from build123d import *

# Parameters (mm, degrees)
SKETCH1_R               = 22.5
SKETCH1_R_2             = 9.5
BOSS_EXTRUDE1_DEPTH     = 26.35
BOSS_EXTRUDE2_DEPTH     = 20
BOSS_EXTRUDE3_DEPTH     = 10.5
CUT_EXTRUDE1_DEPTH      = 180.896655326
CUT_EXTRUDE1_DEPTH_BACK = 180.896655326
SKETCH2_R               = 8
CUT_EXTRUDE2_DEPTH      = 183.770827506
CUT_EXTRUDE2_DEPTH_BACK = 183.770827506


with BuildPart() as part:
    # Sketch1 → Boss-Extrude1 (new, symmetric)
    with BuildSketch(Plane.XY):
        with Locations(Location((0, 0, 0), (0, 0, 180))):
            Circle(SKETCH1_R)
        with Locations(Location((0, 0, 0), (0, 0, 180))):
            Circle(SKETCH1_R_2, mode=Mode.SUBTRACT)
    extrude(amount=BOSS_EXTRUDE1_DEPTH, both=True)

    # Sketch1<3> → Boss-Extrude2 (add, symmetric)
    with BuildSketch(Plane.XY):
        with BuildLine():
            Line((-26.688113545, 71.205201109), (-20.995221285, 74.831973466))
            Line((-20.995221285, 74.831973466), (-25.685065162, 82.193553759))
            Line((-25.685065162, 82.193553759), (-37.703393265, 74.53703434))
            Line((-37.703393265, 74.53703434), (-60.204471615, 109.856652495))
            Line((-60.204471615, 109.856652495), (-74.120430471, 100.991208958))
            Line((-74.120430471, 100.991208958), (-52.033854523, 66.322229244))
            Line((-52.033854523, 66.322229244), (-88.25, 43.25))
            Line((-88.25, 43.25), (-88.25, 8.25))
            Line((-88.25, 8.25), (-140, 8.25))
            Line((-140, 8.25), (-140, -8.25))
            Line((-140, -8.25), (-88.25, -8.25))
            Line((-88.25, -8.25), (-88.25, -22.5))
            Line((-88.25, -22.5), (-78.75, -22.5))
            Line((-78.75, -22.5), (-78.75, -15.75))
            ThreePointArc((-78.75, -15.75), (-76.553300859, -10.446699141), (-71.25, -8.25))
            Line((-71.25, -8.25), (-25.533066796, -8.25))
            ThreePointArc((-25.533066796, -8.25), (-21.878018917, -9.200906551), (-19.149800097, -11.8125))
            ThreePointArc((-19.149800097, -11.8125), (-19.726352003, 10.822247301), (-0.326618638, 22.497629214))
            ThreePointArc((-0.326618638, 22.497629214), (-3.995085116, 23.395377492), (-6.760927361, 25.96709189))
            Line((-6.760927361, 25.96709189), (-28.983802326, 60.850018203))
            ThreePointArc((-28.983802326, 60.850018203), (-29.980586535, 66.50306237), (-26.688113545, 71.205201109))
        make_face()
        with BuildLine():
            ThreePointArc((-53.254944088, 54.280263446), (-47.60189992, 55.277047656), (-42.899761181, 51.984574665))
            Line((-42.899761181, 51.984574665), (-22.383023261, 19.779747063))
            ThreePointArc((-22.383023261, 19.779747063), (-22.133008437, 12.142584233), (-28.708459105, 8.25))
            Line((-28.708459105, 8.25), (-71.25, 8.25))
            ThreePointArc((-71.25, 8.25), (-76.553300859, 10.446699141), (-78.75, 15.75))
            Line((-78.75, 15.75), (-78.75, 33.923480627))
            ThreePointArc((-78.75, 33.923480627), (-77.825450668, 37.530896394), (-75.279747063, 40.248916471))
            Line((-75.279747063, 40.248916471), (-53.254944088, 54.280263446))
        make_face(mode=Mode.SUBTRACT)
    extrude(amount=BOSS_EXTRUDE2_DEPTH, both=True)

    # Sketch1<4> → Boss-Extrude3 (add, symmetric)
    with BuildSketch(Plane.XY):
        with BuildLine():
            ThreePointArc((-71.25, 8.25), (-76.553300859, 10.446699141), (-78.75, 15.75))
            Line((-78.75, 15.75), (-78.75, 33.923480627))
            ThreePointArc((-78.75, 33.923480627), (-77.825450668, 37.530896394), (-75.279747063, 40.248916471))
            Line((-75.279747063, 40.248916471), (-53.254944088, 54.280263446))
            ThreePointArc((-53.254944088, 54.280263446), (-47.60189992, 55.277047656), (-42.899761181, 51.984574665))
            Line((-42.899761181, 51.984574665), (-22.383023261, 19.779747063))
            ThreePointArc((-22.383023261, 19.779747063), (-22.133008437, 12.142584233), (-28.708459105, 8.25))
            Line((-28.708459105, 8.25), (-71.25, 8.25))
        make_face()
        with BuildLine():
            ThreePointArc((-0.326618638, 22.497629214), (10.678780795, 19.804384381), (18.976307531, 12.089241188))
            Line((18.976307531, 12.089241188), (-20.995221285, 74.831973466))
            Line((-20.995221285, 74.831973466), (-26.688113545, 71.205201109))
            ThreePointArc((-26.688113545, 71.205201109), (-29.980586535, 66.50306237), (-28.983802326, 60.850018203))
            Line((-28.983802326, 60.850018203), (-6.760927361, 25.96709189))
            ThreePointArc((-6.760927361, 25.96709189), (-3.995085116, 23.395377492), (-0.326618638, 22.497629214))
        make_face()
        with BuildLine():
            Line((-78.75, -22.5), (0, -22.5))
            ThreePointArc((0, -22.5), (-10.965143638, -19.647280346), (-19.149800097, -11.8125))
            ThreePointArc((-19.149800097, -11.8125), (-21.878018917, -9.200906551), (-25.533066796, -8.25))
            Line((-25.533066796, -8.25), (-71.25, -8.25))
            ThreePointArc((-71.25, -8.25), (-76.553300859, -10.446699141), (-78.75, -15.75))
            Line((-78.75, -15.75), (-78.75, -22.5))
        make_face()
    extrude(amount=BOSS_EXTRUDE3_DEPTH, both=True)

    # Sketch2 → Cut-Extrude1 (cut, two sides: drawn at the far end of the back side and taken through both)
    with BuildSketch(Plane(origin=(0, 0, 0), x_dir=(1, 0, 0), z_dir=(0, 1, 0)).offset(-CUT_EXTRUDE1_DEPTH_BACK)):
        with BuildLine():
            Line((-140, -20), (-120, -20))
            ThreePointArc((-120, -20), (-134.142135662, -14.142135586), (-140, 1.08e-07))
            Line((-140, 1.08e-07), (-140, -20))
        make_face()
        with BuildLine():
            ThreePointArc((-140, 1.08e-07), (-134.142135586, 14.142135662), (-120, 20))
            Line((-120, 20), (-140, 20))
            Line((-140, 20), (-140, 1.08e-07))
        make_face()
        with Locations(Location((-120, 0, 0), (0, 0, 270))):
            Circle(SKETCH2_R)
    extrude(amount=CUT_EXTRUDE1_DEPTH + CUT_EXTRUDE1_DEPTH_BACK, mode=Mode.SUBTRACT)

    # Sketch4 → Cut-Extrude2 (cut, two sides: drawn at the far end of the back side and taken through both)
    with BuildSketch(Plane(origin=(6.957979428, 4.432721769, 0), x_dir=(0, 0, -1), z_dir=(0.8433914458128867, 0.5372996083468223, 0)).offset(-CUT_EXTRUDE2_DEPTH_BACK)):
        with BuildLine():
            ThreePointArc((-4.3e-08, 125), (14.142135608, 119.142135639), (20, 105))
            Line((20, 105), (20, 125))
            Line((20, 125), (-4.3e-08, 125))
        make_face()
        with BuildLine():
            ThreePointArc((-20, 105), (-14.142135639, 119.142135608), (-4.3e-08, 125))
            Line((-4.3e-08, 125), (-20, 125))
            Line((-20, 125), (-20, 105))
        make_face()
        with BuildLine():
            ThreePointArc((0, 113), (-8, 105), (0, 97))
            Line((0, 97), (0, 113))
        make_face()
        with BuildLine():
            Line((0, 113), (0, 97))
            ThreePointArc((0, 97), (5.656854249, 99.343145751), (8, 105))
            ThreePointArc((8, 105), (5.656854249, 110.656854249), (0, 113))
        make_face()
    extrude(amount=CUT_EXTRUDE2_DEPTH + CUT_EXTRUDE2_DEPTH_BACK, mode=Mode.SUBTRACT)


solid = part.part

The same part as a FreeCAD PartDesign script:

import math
import FreeCAD as App
import Part
import Sketcher
from FreeCAD import Vector
Q = App.Units.Quantity

doc = App.newDocument("Part")
body = doc.addObject("PartDesign::Body", "Body")

sketch1 = body.newObject("Sketcher::SketchObject", "Sketch")
sketch1.AttachmentSupport = (doc.getObject("XY_Plane"), [""])
sketch1.MapMode = "FlatFace"
sketch1.addGeometry(Part.Circle(Vector(0, 0, 0), Vector(0, 0, 1), 22), False)
sketch1.addGeometry(Part.Circle(Vector(0, 0, 0), Vector(0, 0, 1), 10), False)
sketch1.addConstraint(Sketcher.Constraint("Coincident", 0, 3, -1, 1))
sketch1.addConstraint(Sketcher.Constraint("Coincident", 1, 3, -1, 1))
sketch1.addConstraint(Sketcher.Constraint("Diameter", 0, Q("45 mm")))
sketch1.addConstraint(Sketcher.Constraint("Diameter", 1, Q("19 mm")))
pad1 = body.newObject("PartDesign::Pad", "Pad")
pad1.Profile = sketch1
pad1.Length = 52.7
pad1.Midplane = True

sketch2 = body.newObject("Sketcher::SketchObject", "Sketch001")
sketch2.AttachmentSupport = (doc.getObject("XY_Plane"), [""])
sketch2.MapMode = "FlatFace"
sketch2.addGeometry(Part.LineSegment(Vector(-27, 71, 0), Vector(-21, 75, 0)), False)
sketch2.addGeometry(Part.LineSegment(Vector(-21, 75, 0), Vector(-26, 82, 0)), False)
sketch2.addGeometry(Part.LineSegment(Vector(-26, 82, 0), Vector(-38, 75, 0)), False)
sketch2.addGeometry(Part.LineSegment(Vector(-38, 75, 0), Vector(-60, 110, 0)), False)
sketch2.addGeometry(Part.LineSegment(Vector(-60, 110, 0), Vector(-74, 101, 0)), False)
sketch2.addGeometry(Part.LineSegment(Vector(-74, 101, 0), Vector(-52, 66, 0)), False)
sketch2.addGeometry(Part.LineSegment(Vector(-52, 66, 0), Vector(-88, 43, 0)), False)
sketch2.addGeometry(Part.LineSegment(Vector(-88, 43, 0), Vector(-88, 8, 0)), False)
sketch2.addGeometry(Part.LineSegment(Vector(-88, 8, 0), Vector(-140, 8, 0)), False)
sketch2.addGeometry(Part.LineSegment(Vector(-140, 8, 0), Vector(-140, -8, 0)), False)
sketch2.addGeometry(Part.LineSegment(Vector(-140, -8, 0), Vector(-88, -8, 0)), False)
sketch2.addGeometry(Part.LineSegment(Vector(-88, -8, 0), Vector(-88, -22, 0)), False)
sketch2.addGeometry(Part.LineSegment(Vector(-88, -22, 0), Vector(-79, -22, 0)), False)
sketch2.addGeometry(Part.LineSegment(Vector(-79, -22, 0), Vector(-79, -16, 0)), False)
sketch2.addGeometry(Part.ArcOfCircle(Part.Circle(Vector(-71, -16, 0), Vector(0, 0, 1), 8), math.radians(90), math.radians(180)), False)
sketch2.addGeometry(Part.LineSegment(Vector(-71, -8, 0), Vector(-26, -8, 0)), False)
sketch2.addGeometry(Part.ArcOfCircle(Part.Circle(Vector(-26, -16, 0), Vector(0, 0, 1), 7), math.radians(32), math.radians(90)), False)
sketch2.addGeometry(Part.ArcOfCircle(Part.Circle(Vector(0, 0, 0), Vector(0, 0, 1), 22), math.radians(91), math.radians(212)), False)
sketch2.addGeometry(Part.ArcOfCircle(Part.Circle(Vector(0, 30, 0), Vector(0, 0, 1), 8), math.radians(-147), math.radians(-89)), False)
sketch2.addGeometry(Part.LineSegment(Vector(-7, 26, 0), Vector(-29, 61, 0)), False)
sketch2.addGeometry(Part.ArcOfCircle(Part.Circle(Vector(-23, 65, 0), Vector(0, 0, 1), 8), math.radians(123), math.radians(212)), False)
sketch2.addGeometry(Part.LineSegment(Vector(-75, 40, 0), Vector(-53, 54, 0)), False)
sketch2.addGeometry(Part.ArcOfCircle(Part.Circle(Vector(-49, 48, 0), Vector(0, 0, 1), 8), math.radians(33), math.radians(123)), False)
sketch2.addGeometry(Part.LineSegment(Vector(-43, 52, 0), Vector(-22, 20, 0)), False)
sketch2.addGeometry(Part.ArcOfCircle(Part.Circle(Vector(-29, 16, 0), Vector(0, 0, 1), 8), math.radians(-90), math.radians(33)), False)
sketch2.addGeometry(Part.LineSegment(Vector(-29, 8, 0), Vector(-71, 8, 0)), False)
sketch2.addGeometry(Part.ArcOfCircle(Part.Circle(Vector(-71, 16, 0), Vector(0, 0, 1), 8), math.radians(180), math.radians(270)), False)
sketch2.addGeometry(Part.LineSegment(Vector(-79, 16, 0), Vector(-79, 34, 0)), False)
sketch2.addGeometry(Part.ArcOfCircle(Part.Circle(Vector(-71, 34, 0), Vector(0, 0, 1), 8), math.radians(123), math.radians(180)), False)
sketch2.addConstraint(Sketcher.Constraint("Coincident", 0, 2, 1, 1))
sketch2.addConstraint(Sketcher.Constraint("Coincident", 1, 2, 2, 1))
sketch2.addConstraint(Sketcher.Constraint("Coincident", 2, 2, 3, 1))
sketch2.addConstraint(Sketcher.Constraint("Coincident", 3, 2, 4, 1))
sketch2.addConstraint(Sketcher.Constraint("Coincident", 4, 2, 5, 1))
sketch2.addConstraint(Sketcher.Constraint("Coincident", 5, 2, 6, 1))
sketch2.addConstraint(Sketcher.Constraint("Coincident", 6, 2, 7, 1))
sketch2.addConstraint(Sketcher.Constraint("Coincident", 7, 2, 8, 1))
sketch2.addConstraint(Sketcher.Constraint("Coincident", 8, 2, 9, 1))
sketch2.addConstraint(Sketcher.Constraint("Coincident", 9, 2, 10, 1))
sketch2.addConstraint(Sketcher.Constraint("Coincident", 10, 2, 11, 1))
sketch2.addConstraint(Sketcher.Constraint("Coincident", 11, 2, 12, 1))
sketch2.addConstraint(Sketcher.Constraint("Coincident", 12, 2, 13, 1))
sketch2.addConstraint(Sketcher.Constraint("Tangent", 13, 2, 14, 2))
sketch2.addConstraint(Sketcher.Constraint("Tangent", 14, 1, 15, 1))
sketch2.addConstraint(Sketcher.Constraint("Tangent", 15, 2, 16, 2))
sketch2.addConstraint(Sketcher.Constraint("Tangent", 16, 1, 17, 2))
sketch2.addConstraint(Sketcher.Constraint("Tangent", 17, 1, 18, 2))
sketch2.addConstraint(Sketcher.Constraint("Tangent", 18, 1, 19, 1))
sketch2.addConstraint(Sketcher.Constraint("Tangent", 19, 2, 20, 2))
sketch2.addConstraint(Sketcher.Constraint("Tangent", 20, 1, 0, 1))
sketch2.addConstraint(Sketcher.Constraint("Tangent", 21, 2, 22, 2))
sketch2.addConstraint(Sketcher.Constraint("Tangent", 22, 1, 23, 1))
sketch2.addConstraint(Sketcher.Constraint("Tangent", 23, 2, 24, 2))
sketch2.addConstraint(Sketcher.Constraint("Tangent", 24, 1, 25, 1))
sketch2.addConstraint(Sketcher.Constraint("Tangent", 25, 2, 26, 2))
sketch2.addConstraint(Sketcher.Constraint("Tangent", 26, 1, 27, 1))
sketch2.addConstraint(Sketcher.Constraint("Tangent", 27, 2, 28, 2))
sketch2.addConstraint(Sketcher.Constraint("Tangent", 28, 1, 21, 1))
sketch2.addConstraint(Sketcher.Constraint("Vertical", 7))
sketch2.addConstraint(Sketcher.Constraint("Horizontal", 8))
sketch2.addConstraint(Sketcher.Constraint("Vertical", 9))
sketch2.addConstraint(Sketcher.Constraint("Horizontal", 10))
sketch2.addConstraint(Sketcher.Constraint("Vertical", 11))
sketch2.addConstraint(Sketcher.Constraint("Horizontal", 12))
sketch2.addConstraint(Sketcher.Constraint("Vertical", 13))
sketch2.addConstraint(Sketcher.Constraint("Horizontal", 15))
sketch2.addConstraint(Sketcher.Constraint("Horizontal", 25))
sketch2.addConstraint(Sketcher.Constraint("Vertical", 27))
sketch2.addConstraint(Sketcher.Constraint("Coincident", 17, 3, -1, 1))
sketch2.addConstraint(Sketcher.Constraint("Equal", 14, 16))
sketch2.addConstraint(Sketcher.Constraint("Equal", 16, 18))
sketch2.addConstraint(Sketcher.Constraint("Equal", 18, 20))
sketch2.addConstraint(Sketcher.Constraint("Equal", 20, 22))
sketch2.addConstraint(Sketcher.Constraint("Equal", 22, 24))
sketch2.addConstraint(Sketcher.Constraint("Equal", 24, 26))
sketch2.addConstraint(Sketcher.Constraint("Equal", 26, 28))
sketch2.addConstraint(Sketcher.Constraint("Symmetric", 14, 3, 26, 3, -1))
sketch2.addConstraint(Sketcher.Constraint("Symmetric", 7, 2, 10, 2, -1))
sketch2.addConstraint(Sketcher.Constraint("Perpendicular", 0, 1))
sketch2.addConstraint(Sketcher.Constraint("Perpendicular", 1, 2))
sketch2.addConstraint(Sketcher.Constraint("Perpendicular", 2, 3))
sketch2.addConstraint(Sketcher.Constraint("Perpendicular", 3, 4))
sketch2.addConstraint(Sketcher.Constraint("Perpendicular", 4, 5))
sketch2.addConstraint(Sketcher.Constraint("Perpendicular", 5, 6))
sketch2.addConstraint(Sketcher.Constraint("Perpendicular", 6, 19))
sketch2.addConstraint(Sketcher.Constraint("Perpendicular", 19, 21))
sketch2.addConstraint(Sketcher.Constraint("Perpendicular", 21, 23))
sketch2.addConstraint(Sketcher.Constraint("Horizontal", 10, 2, 14, 1))
sketch2.addConstraint(Sketcher.Constraint("Radius", 14, Q("7.5 mm")))
sketch2.addConstraint(Sketcher.Constraint("Radius", 17, Q("22.5 mm")))
sketch2.addConstraint(Sketcher.Constraint("DistanceY", 7, 2, 7, 1, Q("35 mm")))
sketch2.addConstraint(Sketcher.Constraint("DistanceX", 12, 1, 12, 2, Q("9.5 mm")))
sketch2.addConstraint(Sketcher.Constraint("DistanceY", 9, 2, 9, 1, Q("16.5 mm")))
sketch2.addConstraint(Sketcher.Constraint("DistanceX", 8, 2, -1, 1, Q("140 mm")))
sketch2.addConstraint(Sketcher.Constraint("Angle", 0, Q("32.5 deg")))
sketch2.addConstraint(Sketcher.Constraint("Distance", 4, Q("16.5 mm")))
sketch2.addConstraint(Sketcher.Constraint("DistanceX", 8, 2, 8, 1, Q("51.75 mm")))
sketch2.addConstraint(Sketcher.Constraint("DistanceY", 11, 2, 11, 1, Q("14.25 mm")))
sketch2.addConstraint(Sketcher.Constraint("Distance", 0, Q("6.75 mm")))
sketch2.addConstraint(Sketcher.Constraint("Distance", 2, Q("14.25 mm")))
sketch2.addConstraint(Sketcher.Constraint("DistanceX", 25, 2, 25, 1, Q("42.541541 mm")))
sketch2.addConstraint(Sketcher.Constraint("DistanceY", 27, 1, 27, 2, Q("18.173481 mm")))
sketch2.addConstraint(Sketcher.Constraint("DistanceY", -1, 1, 20, 1, Q("71.205201 mm")))
sketch2.addConstraint(Sketcher.Constraint("DistanceX", 16, 3, 20, 3, Q("2.8747 mm")))
sketch2.addConstraint(Sketcher.Constraint("DistanceX", 1, 2, 20, 3, Q("3.026699 mm")))
sketch2.addConstraint(Sketcher.Constraint("DistanceY", 1, 2, 3, 2, Q("27.663099 mm")))
pad2 = body.newObject("PartDesign::Pad", "Pad001")
pad2.Profile = sketch2
pad2.Length = 40
pad2.Midplane = True

sketch3 = body.newObject("Sketcher::SketchObject", "Sketch002")
sketch3.AttachmentSupport = (doc.getObject("XY_Plane"), [""])
sketch3.MapMode = "FlatFace"
sketch3.addGeometry(Part.ArcOfCircle(Part.Circle(Vector(-71, 16, 0), Vector(0, 0, 1), 8), math.radians(180), math.radians(270)), False)
sketch3.addGeometry(Part.LineSegment(Vector(-71, 8, 0), Vector(-29, 8, 0)), False)
sketch3.addGeometry(Part.ArcOfCircle(Part.Circle(Vector(-29, 16, 0), Vector(0, 0, 1), 8), math.radians(-90), math.radians(33)), False)
sketch3.addGeometry(Part.LineSegment(Vector(-22, 20, 0), Vector(-43, 52, 0)), False)
sketch3.addGeometry(Part.ArcOfCircle(Part.Circle(Vector(-49, 48, 0), Vector(0, 0, 1), 8), math.radians(33), math.radians(123)), False)
sketch3.addGeometry(Part.LineSegment(Vector(-53, 54, 0), Vector(-75, 40, 0)), False)
sketch3.addGeometry(Part.ArcOfCircle(Part.Circle(Vector(-71, 34, 0), Vector(0, 0, 1), 8), math.radians(123), math.radians(180)), False)
sketch3.addGeometry(Part.LineSegment(Vector(-79, 34, 0), Vector(-79, 16, 0)), False)
sketch3.addGeometry(Part.ArcOfCircle(Part.Circle(Vector(0, 0, 0), Vector(0, 0, 1), 23), math.radians(33), math.radians(91)), False)
sketch3.addGeometry(Part.LineSegment(Vector(19, 12, 0), Vector(-21, 75, 0)), False)
sketch3.addGeometry(Part.LineSegment(Vector(-21, 75, 0), Vector(-27, 71, 0)), False)
sketch3.addGeometry(Part.ArcOfCircle(Part.Circle(Vector(-23, 65, 0), Vector(0, 0, 1), 8), math.radians(123), math.radians(212)), False)
sketch3.addGeometry(Part.LineSegment(Vector(-29, 61, 0), Vector(-7, 26, 0)), False)
sketch3.addGeometry(Part.ArcOfCircle(Part.Circle(Vector(0, 30, 0), Vector(0, 0, 1), 8), math.radians(-147), math.radians(-89)), False)
sketch3.addGeometry(Part.LineSegment(Vector(-79, -22, 0), Vector(0, -22, 0)), False)
sketch3.addGeometry(Part.ArcOfCircle(Part.Circle(Vector(0, 0, 0), Vector(0, 0, 1), 23), math.radians(-148), math.radians(-90)), False)
sketch3.addGeometry(Part.ArcOfCircle(Part.Circle(Vector(-26, -16, 0), Vector(0, 0, 1), 7), math.radians(32), math.radians(90)), False)
sketch3.addGeometry(Part.LineSegment(Vector(-26, -8, 0), Vector(-71, -8, 0)), False)
sketch3.addGeometry(Part.ArcOfCircle(Part.Circle(Vector(-71, -16, 0), Vector(0, 0, 1), 8), math.radians(90), math.radians(180)), False)
sketch3.addGeometry(Part.LineSegment(Vector(-79, -16, 0), Vector(-79, -22, 0)), False)
sketch3.addConstraint(Sketcher.Constraint("Tangent", 0, 2, 1, 1))
sketch3.addConstraint(Sketcher.Constraint("Tangent", 1, 2, 2, 1))
sketch3.addConstraint(Sketcher.Constraint("Tangent", 2, 2, 3, 1))
sketch3.addConstraint(Sketcher.Constraint("Tangent", 3, 2, 4, 1))
sketch3.addConstraint(Sketcher.Constraint("Tangent", 4, 2, 5, 1))
sketch3.addConstraint(Sketcher.Constraint("Tangent", 5, 2, 6, 1))
sketch3.addConstraint(Sketcher.Constraint("Tangent", 6, 2, 7, 1))
sketch3.addConstraint(Sketcher.Constraint("Tangent", 7, 2, 0, 1))
sketch3.addConstraint(Sketcher.Constraint("Tangent", 8, 1, 9, 1))
sketch3.addConstraint(Sketcher.Constraint("Coincident", 9, 2, 10, 1))
sketch3.addConstraint(Sketcher.Constraint("Tangent", 10, 2, 11, 1))
sketch3.addConstraint(Sketcher.Constraint("Tangent", 11, 2, 12, 1))
sketch3.addConstraint(Sketcher.Constraint("Tangent", 12, 2, 13, 1))
sketch3.addConstraint(Sketcher.Constraint("Tangent", 13, 2, 8, 2))
sketch3.addConstraint(Sketcher.Constraint("Tangent", 14, 2, 15, 2))
sketch3.addConstraint(Sketcher.Constraint("Tangent", 15, 1, 16, 1))
sketch3.addConstraint(Sketcher.Constraint("Tangent", 16, 2, 17, 1))
sketch3.addConstraint(Sketcher.Constraint("Tangent", 17, 2, 18, 1))
sketch3.addConstraint(Sketcher.Constraint("Tangent", 18, 2, 19, 1))
sketch3.addConstraint(Sketcher.Constraint("Coincident", 19, 2, 14, 1))
sketch3.addConstraint(Sketcher.Constraint("Horizontal", 1))
sketch3.addConstraint(Sketcher.Constraint("Vertical", 7))
sketch3.addConstraint(Sketcher.Constraint("Horizontal", 14))
sketch3.addConstraint(Sketcher.Constraint("Horizontal", 17))
sketch3.addConstraint(Sketcher.Constraint("Vertical", 19))
sketch3.addConstraint(Sketcher.Constraint("Coincident", 8, 3, -1, 1))
sketch3.addConstraint(Sketcher.Constraint("Coincident", 15, 3, -1, 1))
sketch3.addConstraint(Sketcher.Constraint("Equal", 0, 2))
sketch3.addConstraint(Sketcher.Constraint("Equal", 2, 4))
sketch3.addConstraint(Sketcher.Constraint("Equal", 4, 6))
sketch3.addConstraint(Sketcher.Constraint("Equal", 6, 11))
sketch3.addConstraint(Sketcher.Constraint("Equal", 11, 13))
sketch3.addConstraint(Sketcher.Constraint("Equal", 8, 15))
sketch3.addConstraint(Sketcher.Constraint("Equal", 13, 16))
sketch3.addConstraint(Sketcher.Constraint("Equal", 16, 18))
sketch3.addConstraint(Sketcher.Constraint("Symmetric", 0, 3, 18, 3, -1))
sketch3.addConstraint(Sketcher.Constraint("Perpendicular", 3, 5))
sketch3.addConstraint(Sketcher.Constraint("Perpendicular", 5, 9))
sketch3.addConstraint(Sketcher.Constraint("Perpendicular", 9, 10))
sketch3.addConstraint(Sketcher.Constraint("Perpendicular", 10, 12))
sketch3.addConstraint(Sketcher.Constraint("Radius", 0, Q("7.5 mm")))
sketch3.addConstraint(Sketcher.Constraint("Radius", 8, Q("22.5 mm")))
sketch3.addConstraint(Sketcher.Constraint("Angle", 3, Q("122.5 deg")))
sketch3.addConstraint(Sketcher.Constraint("DistanceY", 18, 3, 0, 2, Q("24 mm")))
sketch3.addConstraint(Sketcher.Constraint("DistanceX", 14, 1, 14, 2, Q("78.75 mm")))
sketch3.addConstraint(Sketcher.Constraint("Distance", 10, Q("6.75 mm")))
sketch3.addConstraint(Sketcher.Constraint("DistanceX", 1, 1, 1, 2, Q("42.541541 mm")))
sketch3.addConstraint(Sketcher.Constraint("DistanceY", 7, 2, 7, 1, Q("18.173481 mm")))
sketch3.addConstraint(Sketcher.Constraint("DistanceY", -1, 1, 10, 2, Q("71.205201 mm")))
pad3 = body.newObject("PartDesign::Pad", "Pad002")
pad3.Profile = sketch3
pad3.Length = 21
pad3.Midplane = True

sketch4 = body.newObject("Sketcher::SketchObject", "Sketch003")
sketch4.AttachmentSupport = (doc.getObject("XZ_Plane"), [""])
sketch4.MapMode = "FlatFace"
sketch4.addGeometry(Part.LineSegment(Vector(-140, 20, 0), Vector(-120, 20, 0)), False)
sketch4.addGeometry(Part.ArcOfCircle(Part.Circle(Vector(-120, 0, 0), Vector(0, 0, 1), 20), math.radians(90), math.radians(180)), False)
sketch4.addGeometry(Part.LineSegment(Vector(-140, 0, 0), Vector(-140, 20, 0)), False)
sketch4.addGeometry(Part.ArcOfCircle(Part.Circle(Vector(-120, 0, 0), Vector(0, 0, 1), 20), math.radians(-180), math.radians(-90)), False)
sketch4.addGeometry(Part.LineSegment(Vector(-120, -20, 0), Vector(-140, -20, 0)), False)
sketch4.addGeometry(Part.LineSegment(Vector(-140, -20, 0), Vector(-140, 0, 0)), False)
sketch4.addGeometry(Part.Circle(Vector(-120, 0, 0), Vector(0, 0, 1), 8), False)
sketch4.addConstraint(Sketcher.Constraint("Tangent", 0, 2, 1, 1))
sketch4.addConstraint(Sketcher.Constraint("Tangent", 1, 2, 2, 1))
sketch4.addConstraint(Sketcher.Constraint("Coincident", 2, 2, 0, 1))
sketch4.addConstraint(Sketcher.Constraint("Tangent", 3, 2, 4, 1))
sketch4.addConstraint(Sketcher.Constraint("Coincident", 4, 2, 5, 1))
sketch4.addConstraint(Sketcher.Constraint("Tangent", 5, 2, 3, 1))
sketch4.addConstraint(Sketcher.Constraint("Horizontal", 0))
sketch4.addConstraint(Sketcher.Constraint("Vertical", 2))
sketch4.addConstraint(Sketcher.Constraint("Horizontal", 4))
sketch4.addConstraint(Sketcher.Constraint("Vertical", 5))
sketch4.addConstraint(Sketcher.Constraint("Coincident", 3, 3, 1, 3))
sketch4.addConstraint(Sketcher.Constraint("Coincident", 6, 3, 1, 3))
sketch4.addConstraint(Sketcher.Constraint("Equal", 1, 3))
sketch4.addConstraint(Sketcher.Constraint("PointOnObject", 1, 3, -1))
sketch4.addConstraint(Sketcher.Constraint("Diameter", 6, Q("16 mm")))
sketch4.addConstraint(Sketcher.Constraint("Radius", 1, Q("20 mm")))
sketch4.addConstraint(Sketcher.Constraint("DistanceX", 1, 3, -1, 1, Q("120 mm")))
pocket1 = body.newObject("PartDesign::Pocket", "Pocket")
pocket1.Profile = sketch4
pocket1.Type = "ThroughAll"
pocket1.Midplane = True

sketch5 = body.newObject("Sketcher::SketchObject", "Sketch004")
sketch5.Placement = App.Placement(Vector(6.957979, 4.432722, 0), App.Rotation(Vector(0, 0, -1), Vector(-0.537299608, 0.843391446, 0), Vector(0.843391446, 0.537299608, 0), "ZXY"))
sketch5.addGeometry(Part.ArcOfCircle(Part.Circle(Vector(0, 105, 0), Vector(0, 0, 1), 20), math.radians(0), math.radians(90)), False)
sketch5.addGeometry(Part.LineSegment(Vector(20, 105, 0), Vector(20, 125, 0)), False)
sketch5.addGeometry(Part.LineSegment(Vector(20, 125, 0), Vector(0, 125, 0)), False)
sketch5.addGeometry(Part.ArcOfCircle(Part.Circle(Vector(0, 105, 0), Vector(0, 0, 1), 20), math.radians(90), math.radians(180)), False)
sketch5.addGeometry(Part.LineSegment(Vector(0, 125, 0), Vector(-20, 125, 0)), False)
sketch5.addGeometry(Part.LineSegment(Vector(-20, 125, 0), Vector(-20, 105, 0)), False)
sketch5.addGeometry(Part.ArcOfCircle(Part.Circle(Vector(0, 105, 0), Vector(0, 0, 1), 8), math.radians(90), math.radians(270)), False)
sketch5.addGeometry(Part.ArcOfCircle(Part.Circle(Vector(0, 105, 0), Vector(0, 0, 1), 8), math.radians(-90), math.radians(0)), False)
sketch5.addGeometry(Part.ArcOfCircle(Part.Circle(Vector(0, 105, 0), Vector(0, 0, 1), 8), math.radians(0), math.radians(90)), False)
sketch5.addConstraint(Sketcher.Constraint("Tangent", 0, 1, 1, 1))
sketch5.addConstraint(Sketcher.Constraint("Coincident", 1, 2, 2, 1))
sketch5.addConstraint(Sketcher.Constraint("Tangent", 2, 2, 0, 2))
sketch5.addConstraint(Sketcher.Constraint("Tangent", 3, 1, 4, 1))
sketch5.addConstraint(Sketcher.Constraint("Coincident", 4, 2, 5, 1))
sketch5.addConstraint(Sketcher.Constraint("Tangent", 5, 2, 3, 2))
sketch5.addConstraint(Sketcher.Constraint("Tangent", 6, 2, 7, 1))
sketch5.addConstraint(Sketcher.Constraint("Tangent", 7, 2, 8, 1))
sketch5.addConstraint(Sketcher.Constraint("Tangent", 8, 2, 6, 1))
sketch5.addConstraint(Sketcher.Constraint("Vertical", 1))
sketch5.addConstraint(Sketcher.Constraint("Horizontal", 2))
sketch5.addConstraint(Sketcher.Constraint("Horizontal", 4))
sketch5.addConstraint(Sketcher.Constraint("Vertical", 5))
sketch5.addConstraint(Sketcher.Constraint("Coincident", 3, 3, 0, 3))
sketch5.addConstraint(Sketcher.Constraint("Coincident", 6, 3, 0, 3))
sketch5.addConstraint(Sketcher.Constraint("Equal", 0, 3))
sketch5.addConstraint(Sketcher.Constraint("PointOnObject", 0, 3, -2))
sketch5.addConstraint(Sketcher.Constraint("PointOnObject", 6, 2, -2))
sketch5.addConstraint(Sketcher.Constraint("PointOnObject", 8, 2, -2))
sketch5.addConstraint(Sketcher.Constraint("Horizontal", 5, 2, 7, 2))
sketch5.addConstraint(Sketcher.Constraint("Radius", 0, Q("20 mm")))
sketch5.addConstraint(Sketcher.Constraint("Radius", 6, Q("8 mm")))
sketch5.addConstraint(Sketcher.Constraint("DistanceY", -1, 1, 0, 3, Q("105 mm")))
pocket2 = body.newObject("PartDesign::Pocket", "Pocket001")
pocket2.Profile = sketch5
pocket2.Type = "ThroughAll"
pocket2.Midplane = True

doc.recompute()
